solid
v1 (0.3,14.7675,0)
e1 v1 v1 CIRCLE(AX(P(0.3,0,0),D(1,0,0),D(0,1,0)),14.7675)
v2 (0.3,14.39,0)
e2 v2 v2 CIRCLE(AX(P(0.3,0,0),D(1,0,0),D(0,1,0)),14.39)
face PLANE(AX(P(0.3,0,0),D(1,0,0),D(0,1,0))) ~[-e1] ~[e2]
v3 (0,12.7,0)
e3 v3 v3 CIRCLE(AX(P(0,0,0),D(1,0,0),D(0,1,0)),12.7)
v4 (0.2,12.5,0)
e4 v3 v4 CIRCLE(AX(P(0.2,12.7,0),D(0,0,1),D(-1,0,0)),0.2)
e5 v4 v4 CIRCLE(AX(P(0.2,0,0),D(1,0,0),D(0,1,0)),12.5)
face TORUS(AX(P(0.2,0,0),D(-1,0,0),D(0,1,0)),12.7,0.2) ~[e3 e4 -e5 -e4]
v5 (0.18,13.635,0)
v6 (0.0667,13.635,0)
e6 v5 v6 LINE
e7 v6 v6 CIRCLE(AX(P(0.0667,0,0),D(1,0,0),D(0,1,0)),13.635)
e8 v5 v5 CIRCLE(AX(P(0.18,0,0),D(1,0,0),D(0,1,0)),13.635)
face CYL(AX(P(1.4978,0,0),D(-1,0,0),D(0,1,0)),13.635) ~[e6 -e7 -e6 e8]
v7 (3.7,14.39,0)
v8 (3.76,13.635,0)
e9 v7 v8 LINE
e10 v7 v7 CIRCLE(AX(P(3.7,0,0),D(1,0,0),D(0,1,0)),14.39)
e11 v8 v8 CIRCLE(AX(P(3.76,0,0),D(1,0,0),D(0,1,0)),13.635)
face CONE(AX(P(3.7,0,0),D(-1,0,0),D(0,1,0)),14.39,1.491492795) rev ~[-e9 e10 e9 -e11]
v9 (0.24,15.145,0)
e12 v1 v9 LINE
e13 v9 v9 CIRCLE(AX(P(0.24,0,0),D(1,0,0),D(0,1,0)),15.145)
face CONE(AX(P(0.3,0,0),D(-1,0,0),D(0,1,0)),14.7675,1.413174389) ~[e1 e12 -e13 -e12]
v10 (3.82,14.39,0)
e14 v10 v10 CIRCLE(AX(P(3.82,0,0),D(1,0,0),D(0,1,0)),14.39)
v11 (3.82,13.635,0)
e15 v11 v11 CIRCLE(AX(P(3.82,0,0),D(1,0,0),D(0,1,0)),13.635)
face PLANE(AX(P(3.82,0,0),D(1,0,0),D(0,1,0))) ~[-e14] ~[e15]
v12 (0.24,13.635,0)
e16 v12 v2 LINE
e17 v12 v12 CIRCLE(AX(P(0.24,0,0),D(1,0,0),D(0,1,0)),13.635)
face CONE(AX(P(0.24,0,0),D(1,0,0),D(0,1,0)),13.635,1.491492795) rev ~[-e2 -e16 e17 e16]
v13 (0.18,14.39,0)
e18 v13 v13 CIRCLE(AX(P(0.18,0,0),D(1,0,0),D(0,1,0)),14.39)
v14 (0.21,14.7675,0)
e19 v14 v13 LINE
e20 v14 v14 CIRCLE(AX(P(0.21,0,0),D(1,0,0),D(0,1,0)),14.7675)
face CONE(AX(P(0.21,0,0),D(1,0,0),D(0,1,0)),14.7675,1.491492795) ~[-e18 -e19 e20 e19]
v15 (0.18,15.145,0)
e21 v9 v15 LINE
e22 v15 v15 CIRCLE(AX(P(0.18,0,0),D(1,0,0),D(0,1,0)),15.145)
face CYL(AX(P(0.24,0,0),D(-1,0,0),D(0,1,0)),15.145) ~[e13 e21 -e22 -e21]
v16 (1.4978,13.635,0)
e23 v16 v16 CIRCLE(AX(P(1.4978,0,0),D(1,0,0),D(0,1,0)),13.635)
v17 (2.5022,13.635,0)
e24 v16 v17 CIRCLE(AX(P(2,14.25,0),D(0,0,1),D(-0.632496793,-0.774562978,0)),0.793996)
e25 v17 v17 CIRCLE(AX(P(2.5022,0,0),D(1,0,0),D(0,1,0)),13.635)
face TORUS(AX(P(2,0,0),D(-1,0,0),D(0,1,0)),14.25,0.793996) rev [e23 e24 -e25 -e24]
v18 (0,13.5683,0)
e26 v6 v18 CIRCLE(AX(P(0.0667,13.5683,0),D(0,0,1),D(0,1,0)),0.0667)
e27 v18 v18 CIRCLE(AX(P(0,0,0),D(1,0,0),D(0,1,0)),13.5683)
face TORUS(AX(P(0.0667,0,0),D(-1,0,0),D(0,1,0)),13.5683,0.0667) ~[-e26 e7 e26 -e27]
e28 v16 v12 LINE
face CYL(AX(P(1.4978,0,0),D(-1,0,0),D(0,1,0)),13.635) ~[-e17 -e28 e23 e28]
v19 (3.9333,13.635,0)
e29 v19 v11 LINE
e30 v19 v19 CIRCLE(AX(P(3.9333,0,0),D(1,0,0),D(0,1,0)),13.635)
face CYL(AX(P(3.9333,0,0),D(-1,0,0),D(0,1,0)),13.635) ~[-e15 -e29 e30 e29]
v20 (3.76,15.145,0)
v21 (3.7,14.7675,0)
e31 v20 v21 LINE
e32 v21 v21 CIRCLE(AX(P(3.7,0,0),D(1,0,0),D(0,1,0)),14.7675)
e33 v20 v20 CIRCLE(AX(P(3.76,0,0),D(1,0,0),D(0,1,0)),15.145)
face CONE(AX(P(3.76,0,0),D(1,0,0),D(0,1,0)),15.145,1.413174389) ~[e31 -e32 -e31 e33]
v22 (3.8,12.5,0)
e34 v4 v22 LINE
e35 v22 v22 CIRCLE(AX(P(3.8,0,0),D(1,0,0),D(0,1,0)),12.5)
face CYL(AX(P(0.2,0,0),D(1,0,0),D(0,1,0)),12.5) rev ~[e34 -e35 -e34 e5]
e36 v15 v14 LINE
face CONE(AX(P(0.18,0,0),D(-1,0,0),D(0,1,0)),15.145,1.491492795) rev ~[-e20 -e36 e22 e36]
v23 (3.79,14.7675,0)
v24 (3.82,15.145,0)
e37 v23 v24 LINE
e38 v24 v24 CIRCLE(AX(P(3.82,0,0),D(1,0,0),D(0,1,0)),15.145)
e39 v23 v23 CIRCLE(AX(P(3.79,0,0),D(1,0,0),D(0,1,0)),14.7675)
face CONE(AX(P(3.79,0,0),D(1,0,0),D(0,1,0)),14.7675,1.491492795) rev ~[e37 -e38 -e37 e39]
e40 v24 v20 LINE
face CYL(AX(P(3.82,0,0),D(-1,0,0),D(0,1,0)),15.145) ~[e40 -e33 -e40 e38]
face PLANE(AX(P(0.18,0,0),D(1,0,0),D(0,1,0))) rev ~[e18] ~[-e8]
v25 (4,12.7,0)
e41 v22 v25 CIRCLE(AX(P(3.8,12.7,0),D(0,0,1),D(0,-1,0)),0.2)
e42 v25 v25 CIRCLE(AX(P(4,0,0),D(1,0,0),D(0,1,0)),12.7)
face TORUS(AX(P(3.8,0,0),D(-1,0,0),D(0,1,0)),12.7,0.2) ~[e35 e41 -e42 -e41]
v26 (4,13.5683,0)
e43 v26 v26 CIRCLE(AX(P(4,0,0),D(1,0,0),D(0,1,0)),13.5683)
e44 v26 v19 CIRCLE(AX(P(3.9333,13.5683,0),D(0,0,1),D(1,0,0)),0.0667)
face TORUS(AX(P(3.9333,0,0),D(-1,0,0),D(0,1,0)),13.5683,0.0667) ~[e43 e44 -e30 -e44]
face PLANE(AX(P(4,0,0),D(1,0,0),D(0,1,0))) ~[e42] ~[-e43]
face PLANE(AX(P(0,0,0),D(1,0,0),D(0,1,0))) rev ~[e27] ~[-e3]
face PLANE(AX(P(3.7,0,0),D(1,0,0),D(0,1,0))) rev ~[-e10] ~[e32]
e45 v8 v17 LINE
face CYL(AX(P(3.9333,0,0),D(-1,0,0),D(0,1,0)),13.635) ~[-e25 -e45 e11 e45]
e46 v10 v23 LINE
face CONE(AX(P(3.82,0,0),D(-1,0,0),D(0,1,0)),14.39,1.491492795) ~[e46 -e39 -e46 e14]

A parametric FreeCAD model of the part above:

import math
import FreeCAD as App
import Part
import Sketcher

V = App.Vector
Q = App.Units.Quantity


def add_polygon(sketch, points):
    """Adds a closed chain of lines whose ends are joined by coincident constraints."""
    first, n = sketch.GeometryCount, len(points)
    for a, b in zip(points, points[1:] + points[:1]):
        sketch.addGeometry(Part.LineSegment(App.Vector(*a, 0), App.Vector(*b, 0)), False)
    for i in range(n):
        sketch.addConstraint(Sketcher.Constraint("Coincident", first + i, 2, first + (i + 1) % n, 1))

doc = App.newDocument("Part")
params = doc.addObject("Spreadsheet::Sheet", "Params")
for row, (alias, value) in enumerate([
    ("sketch1_radius", "0.2 mm"),
    ("sketch1_width", "3.6 mm"),
    ("revolution_angle", "360 deg"),
    ("sketch2_width", "0.06 mm"),
    ("revolution2_angle", "360 deg"),
    ("sketch3_width", "0.06 mm"),
    ("revolution3_angle", "360 deg"),
], start=1):
    params.set(f"A{row}", alias)
    params.set(f"B{row}", "=" + value)
    params.setAlias(f"B{row}", alias)

body = doc.addObject("PartDesign::Body", "Body")

# Sketch on XY plane
sketch1 = doc.addObject("Sketcher::SketchObject", "Sketch")
body.addObject(sketch1)
sketch1.AttachmentSupport = (doc.XY_Plane, [""])
sketch1.MapMode = "FlatFace"
sketch1.addGeometry(Part.ArcOfCircle(Part.Circle(V(0.0667, 13.5683, 0), V(0, 0, 1), 0.0667), math.radians(90), math.radians(180)), False)
sketch1.addGeometry(Part.LineSegment(V(0, 13.5683, 0), V(0, 12.7, 0)), False)
sketch1.addGeometry(Part.ArcOfCircle(Part.Circle(V(0.2, 12.7, 0), V(0, 0, 1), 0.2), math.radians(180), math.radians(270)), False)
sketch1.addGeometry(Part.LineSegment(V(0.2, 12.5, 0), V(3.8, 12.5, 0)), False)
sketch1.addGeometry(Part.ArcOfCircle(Part.Circle(V(3.8, 12.7, 0), V(0, 0, 1), 0.2), math.radians(-90), math.radians(0)), False)
sketch1.addGeometry(Part.LineSegment(V(4, 12.7, 0), V(4, 13.5683, 0)), False)
sketch1.addGeometry(Part.ArcOfCircle(Part.Circle(V(3.9333, 13.5683, 0), V(0, 0, 1), 0.0667), math.radians(0), math.radians(90)), False)
sketch1.addGeometry(Part.LineSegment(V(3.9333, 13.635, 0), V(2.5022, 13.635, 0)), False)
sketch1.addGeometry(Part.ArcOfCircle(Part.Circle(V(2, 14.25, 0), V(0, 0, 1), 0.793996), math.radians(-129.234573), math.radians(-50.765427)), False)
sketch1.addGeometry(Part.LineSegment(V(1.4978, 13.635, 0), V(0.0667, 13.635, 0)), False)
sketch1.addConstraint(Sketcher.Constraint("Tangent", 0, 2, 1, 1))
sketch1.addConstraint(Sketcher.Constraint("Tangent", 1, 2, 2, 1))
sketch1.addConstraint(Sketcher.Constraint("Tangent", 2, 2, 3, 1))
sketch1.addConstraint(Sketcher.Constraint("Tangent", 3, 2, 4, 1))
sketch1.addConstraint(Sketcher.Constraint("Tangent", 4, 2, 5, 1))
sketch1.addConstraint(Sketcher.Constraint("Tangent", 5, 2, 6, 1))
sketch1.addConstraint(Sketcher.Constraint("Tangent", 6, 2, 7, 1))
sketch1.addConstraint(Sketcher.Constraint("Coincident", 7, 2, 8, 2))
sketch1.addConstraint(Sketcher.Constraint("Coincident", 8, 1, 9, 1))
sketch1.addConstraint(Sketcher.Constraint("Tangent", 9, 2, 0, 1))
sketch1.addConstraint(Sketcher.Constraint("Vertical", 1))
sketch1.addConstraint(Sketcher.Constraint("Horizontal", 3))
sketch1.addConstraint(Sketcher.Constraint("Vertical", 5))
sketch1.addConstraint(Sketcher.Constraint("Horizontal", 7))
sketch1.addConstraint(Sketcher.Constraint("Horizontal", 9))
sketch1.addConstraint(Sketcher.Constraint("Equal", 2, 4))
sketch1.addConstraint(Sketcher.Constraint("Equal", 0, 6))
sketch1.addConstraint(Sketcher.Constraint("PointOnObject", 0, 2, -2))
sketch1.addConstraint(Sketcher.Constraint("Horizontal", 0, 3, 6, 3))
sketch1.addConstraint(Sketcher.Constraint("Equal", 7, 9))
sketch1.addConstraint(Sketcher.Constraint("Radius", 2, Q("0.2 mm")))
sketch1.addConstraint(Sketcher.Constraint("DistanceX", 3, 1, 3, 2, Q("3.6 mm")))
sketch1.addConstraint(Sketcher.Constraint("Radius", 8, Q("0.794 mm")))
sketch1.addConstraint(Sketcher.Constraint("DistanceY", -1, 1, 2, 3, Q("12.7 mm")))
sketch1.addConstraint(Sketcher.Constraint("Radius", 0, Q("0.0667 mm")))
sketch1.addConstraint(Sketcher.Constraint("DistanceX", 7, 2, 7, 1, Q("1.431 mm")))
sketch1.addConstraint(Sketcher.Constraint("DistanceY", -1, 1, 8, 3, Q("14.25 mm")))
sketch1.setExpression("Constraints[20]", "Params.sketch1_radius")
sketch1.setExpression("Constraints[21]", "Params.sketch1_width")
revolution = doc.addObject("PartDesign::Revolution", "Revolution")
body.addObject(revolution)
revolution.Profile = sketch1
revolution.ReferenceAxis = (sketch1, ["H_Axis"])
revolution.setExpression("Angle", "Params.revolution_angle")

# Sketch on XY plane
sketch2 = doc.addObject("Sketcher::SketchObject", "Sketch001")
body.addObject(sketch2)
sketch2.AttachmentSupport = (doc.XY_Plane, [""])
sketch2.MapMode = "FlatFace"
add_polygon(sketch2, [(0.24, 15.145), (0.18, 15.145), (0.21, 14.7675), (0.18, 14.39), (0.18, 13.635), (0.24, 13.635), (0.3, 14.39), (0.3, 14.7675)])  # lines 0-7
sketch2.addConstraint(Sketcher.Constraint("Horizontal", 0))
sketch2.addConstraint(Sketcher.Constraint("Vertical", 3))
sketch2.addConstraint(Sketcher.Constraint("Horizontal", 4))
sketch2.addConstraint(Sketcher.Constraint("Vertical", 6))
sketch2.addConstraint(Sketcher.Constraint("Parallel", 2, 5))
sketch2.addConstraint(Sketcher.Constraint("Horizontal", 2, 2, 5, 2))
sketch2.addConstraint(Sketcher.Constraint("Horizontal", 1, 2, 6, 2))
sketch2.addConstraint(Sketcher.Constraint("Vertical", 0, 2, 2, 2))
sketch2.addConstraint(Sketcher.Constraint("Vertical", 4, 2, 7, 2))
sketch2.addConstraint(Sketcher.Constraint("Equal", 1, 2))
sketch2.addConstraint(Sketcher.Constraint("DistanceX", 0, 2, 0, 1, Q("0.06 mm")))
sketch2.addConstraint(Sketcher.Constraint("DistanceX", -1, 1, 5, 2, Q("0.3 mm")))
sketch2.addConstraint(Sketcher.Constraint("Angle", 7, Q("99.031 deg")))
sketch2.addConstraint(Sketcher.Constraint("DistanceY", 3, 2, 3, 1, Q("0.755 mm")))
sketch2.addConstraint(Sketcher.Constraint("DistanceX", -1, 1, 0, 2, Q("0.18 mm")))
sketch2.addConstraint(Sketcher.Constraint("DistanceY", -1, 1, 2, 2, Q("14.39 mm")))
sketch2.setExpression("Constraints[18]", "Params.sketch2_width")
revolution2 = doc.addObject("PartDesign::Revolution", "Revolution001")
body.addObject(revolution2)
revolution2.Profile = sketch2
revolution2.ReferenceAxis = (sketch2, ["H_Axis"])
revolution2.setExpression("Angle", "Params.revolution2_angle")

# Sketch on XY plane
sketch3 = doc.addObject("Sketcher::SketchObject", "Sketch002")
body.addObject(sketch3)
sketch3.AttachmentSupport = (doc.XY_Plane, [""])
sketch3.MapMode = "FlatFace"
add_polygon(sketch3, [(3.7, 14.7675), (3.7, 14.39), (3.76, 13.635), (3.82, 13.635), (3.82, 14.39), (3.79, 14.7675), (3.82, 15.145), (3.76, 15.145)])  # lines 0-7
sketch3.addConstraint(Sketcher.Constraint("Vertical", 0))
sketch3.addConstraint(Sketcher.Constraint("Horizontal", 2))
sketch3.addConstraint(Sketcher.Constraint("Vertical", 3))
sketch3.addConstraint(Sketcher.Constraint("Horizontal", 6))
sketch3.addConstraint(Sketcher.Constraint("Parallel", 1, 4))
sketch3.addConstraint(Sketcher.Constraint("Horizontal", 0, 2, 3, 2))
sketch3.addConstraint(Sketcher.Constraint("Horizontal", 4, 2, 7, 2))
sketch3.addConstraint(Sketcher.Constraint("Vertical", 3, 2, 5, 2))
sketch3.addConstraint(Sketcher.Constraint("Vertical", 1, 2, 6, 2))
sketch3.addConstraint(Sketcher.Constraint("Equal", 4, 5))
sketch3.addConstraint(Sketcher.Constraint("DistanceX", 2, 1, 2, 2, Q("0.06 mm")))
sketch3.addConstraint(Sketcher.Constraint("DistanceX", -1, 1, 0, 2, Q("3.7 mm")))
sketch3.addConstraint(Sketcher.Constraint("Angle", 7, Q("-99.031 deg")))
sketch3.addConstraint(Sketcher.Constraint("DistanceY", 3, 1, 3, 2, Q("0.755 mm")))
sketch3.addConstraint(Sketcher.Constraint("DistanceY", -1, 1, 0, 2, Q("14.39 mm")))
sketch3.addConstraint(Sketcher.Constraint("DistanceX", -1, 1, 1, 2, Q("3.76 mm")))
sketch3.setExpression("Constraints[18]", "Params.sketch3_width")
revolution3 = doc.addObject("PartDesign::Revolution", "Revolution002")
body.addObject(revolution3)
revolution3.Profile = sketch3
revolution3.ReferenceAxis = (sketch3, ["H_Axis"])
revolution3.setExpression("Angle", "Params.revolution3_angle")

doc.recompute()
